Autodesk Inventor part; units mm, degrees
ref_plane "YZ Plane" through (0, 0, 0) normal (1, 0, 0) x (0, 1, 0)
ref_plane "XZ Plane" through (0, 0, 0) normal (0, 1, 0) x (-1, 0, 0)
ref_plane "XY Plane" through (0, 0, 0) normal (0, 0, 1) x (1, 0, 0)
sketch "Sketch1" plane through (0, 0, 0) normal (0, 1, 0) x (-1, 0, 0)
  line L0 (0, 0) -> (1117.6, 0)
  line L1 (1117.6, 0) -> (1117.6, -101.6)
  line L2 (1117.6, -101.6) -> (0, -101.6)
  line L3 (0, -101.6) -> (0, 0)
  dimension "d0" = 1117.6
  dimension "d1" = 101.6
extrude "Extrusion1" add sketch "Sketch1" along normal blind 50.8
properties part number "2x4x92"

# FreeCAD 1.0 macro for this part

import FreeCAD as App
import Part
import Sketcher

V = App.Vector
Q = App.Units.Quantity


def add_polygon(sketch, points):
    """Adds a closed chain of lines whose ends are joined by coincident constraints."""
    first, n = sketch.GeometryCount, len(points)
    for a, b in zip(points, points[1:] + points[:1]):
        sketch.addGeometry(Part.LineSegment(App.Vector(*a, 0), App.Vector(*b, 0)), False)
    for i in range(n):
        sketch.addConstraint(Sketcher.Constraint("Coincident", first + i, 2, first + (i + 1) % n, 1))

doc = App.newDocument("Part")
body = doc.addObject("PartDesign::Body", "Body")

sketch1 = doc.addObject("Sketcher::SketchObject", "Sketch")
body.addObject(sketch1)
sketch1.AttachmentSupport = (doc.XZ_Plane, [""])
sketch1.MapMode = "FlatFace"
add_polygon(sketch1, [(-1117.6, 0), (0, 0), (0, -101.6), (-1117.6, -101.6)])
sketch1.addConstraint(Sketcher.Constraint("Horizontal", 0))
sketch1.addConstraint(Sketcher.Constraint("Vertical", 1))
sketch1.addConstraint(Sketcher.Constraint("Horizontal", 2))
sketch1.addConstraint(Sketcher.Constraint("Vertical", 3))
sketch1.addConstraint(Sketcher.Constraint("Coincident", 0, 2, -1, 1))
sketch1.addConstraint(Sketcher.Constraint("DistanceX", 0, 1, 0, 2, Q("44 in")))
sketch1.addConstraint(Sketcher.Constraint("DistanceY", 1, 2, 1, 1, Q("4 in")))
pad1 = doc.addObject("PartDesign::Pad", "Pad")
body.addObject(pad1)
pad1.Profile = sketch1
pad1.Length = Q("2 in")
pad1.Reversed = True

doc.recompute()
